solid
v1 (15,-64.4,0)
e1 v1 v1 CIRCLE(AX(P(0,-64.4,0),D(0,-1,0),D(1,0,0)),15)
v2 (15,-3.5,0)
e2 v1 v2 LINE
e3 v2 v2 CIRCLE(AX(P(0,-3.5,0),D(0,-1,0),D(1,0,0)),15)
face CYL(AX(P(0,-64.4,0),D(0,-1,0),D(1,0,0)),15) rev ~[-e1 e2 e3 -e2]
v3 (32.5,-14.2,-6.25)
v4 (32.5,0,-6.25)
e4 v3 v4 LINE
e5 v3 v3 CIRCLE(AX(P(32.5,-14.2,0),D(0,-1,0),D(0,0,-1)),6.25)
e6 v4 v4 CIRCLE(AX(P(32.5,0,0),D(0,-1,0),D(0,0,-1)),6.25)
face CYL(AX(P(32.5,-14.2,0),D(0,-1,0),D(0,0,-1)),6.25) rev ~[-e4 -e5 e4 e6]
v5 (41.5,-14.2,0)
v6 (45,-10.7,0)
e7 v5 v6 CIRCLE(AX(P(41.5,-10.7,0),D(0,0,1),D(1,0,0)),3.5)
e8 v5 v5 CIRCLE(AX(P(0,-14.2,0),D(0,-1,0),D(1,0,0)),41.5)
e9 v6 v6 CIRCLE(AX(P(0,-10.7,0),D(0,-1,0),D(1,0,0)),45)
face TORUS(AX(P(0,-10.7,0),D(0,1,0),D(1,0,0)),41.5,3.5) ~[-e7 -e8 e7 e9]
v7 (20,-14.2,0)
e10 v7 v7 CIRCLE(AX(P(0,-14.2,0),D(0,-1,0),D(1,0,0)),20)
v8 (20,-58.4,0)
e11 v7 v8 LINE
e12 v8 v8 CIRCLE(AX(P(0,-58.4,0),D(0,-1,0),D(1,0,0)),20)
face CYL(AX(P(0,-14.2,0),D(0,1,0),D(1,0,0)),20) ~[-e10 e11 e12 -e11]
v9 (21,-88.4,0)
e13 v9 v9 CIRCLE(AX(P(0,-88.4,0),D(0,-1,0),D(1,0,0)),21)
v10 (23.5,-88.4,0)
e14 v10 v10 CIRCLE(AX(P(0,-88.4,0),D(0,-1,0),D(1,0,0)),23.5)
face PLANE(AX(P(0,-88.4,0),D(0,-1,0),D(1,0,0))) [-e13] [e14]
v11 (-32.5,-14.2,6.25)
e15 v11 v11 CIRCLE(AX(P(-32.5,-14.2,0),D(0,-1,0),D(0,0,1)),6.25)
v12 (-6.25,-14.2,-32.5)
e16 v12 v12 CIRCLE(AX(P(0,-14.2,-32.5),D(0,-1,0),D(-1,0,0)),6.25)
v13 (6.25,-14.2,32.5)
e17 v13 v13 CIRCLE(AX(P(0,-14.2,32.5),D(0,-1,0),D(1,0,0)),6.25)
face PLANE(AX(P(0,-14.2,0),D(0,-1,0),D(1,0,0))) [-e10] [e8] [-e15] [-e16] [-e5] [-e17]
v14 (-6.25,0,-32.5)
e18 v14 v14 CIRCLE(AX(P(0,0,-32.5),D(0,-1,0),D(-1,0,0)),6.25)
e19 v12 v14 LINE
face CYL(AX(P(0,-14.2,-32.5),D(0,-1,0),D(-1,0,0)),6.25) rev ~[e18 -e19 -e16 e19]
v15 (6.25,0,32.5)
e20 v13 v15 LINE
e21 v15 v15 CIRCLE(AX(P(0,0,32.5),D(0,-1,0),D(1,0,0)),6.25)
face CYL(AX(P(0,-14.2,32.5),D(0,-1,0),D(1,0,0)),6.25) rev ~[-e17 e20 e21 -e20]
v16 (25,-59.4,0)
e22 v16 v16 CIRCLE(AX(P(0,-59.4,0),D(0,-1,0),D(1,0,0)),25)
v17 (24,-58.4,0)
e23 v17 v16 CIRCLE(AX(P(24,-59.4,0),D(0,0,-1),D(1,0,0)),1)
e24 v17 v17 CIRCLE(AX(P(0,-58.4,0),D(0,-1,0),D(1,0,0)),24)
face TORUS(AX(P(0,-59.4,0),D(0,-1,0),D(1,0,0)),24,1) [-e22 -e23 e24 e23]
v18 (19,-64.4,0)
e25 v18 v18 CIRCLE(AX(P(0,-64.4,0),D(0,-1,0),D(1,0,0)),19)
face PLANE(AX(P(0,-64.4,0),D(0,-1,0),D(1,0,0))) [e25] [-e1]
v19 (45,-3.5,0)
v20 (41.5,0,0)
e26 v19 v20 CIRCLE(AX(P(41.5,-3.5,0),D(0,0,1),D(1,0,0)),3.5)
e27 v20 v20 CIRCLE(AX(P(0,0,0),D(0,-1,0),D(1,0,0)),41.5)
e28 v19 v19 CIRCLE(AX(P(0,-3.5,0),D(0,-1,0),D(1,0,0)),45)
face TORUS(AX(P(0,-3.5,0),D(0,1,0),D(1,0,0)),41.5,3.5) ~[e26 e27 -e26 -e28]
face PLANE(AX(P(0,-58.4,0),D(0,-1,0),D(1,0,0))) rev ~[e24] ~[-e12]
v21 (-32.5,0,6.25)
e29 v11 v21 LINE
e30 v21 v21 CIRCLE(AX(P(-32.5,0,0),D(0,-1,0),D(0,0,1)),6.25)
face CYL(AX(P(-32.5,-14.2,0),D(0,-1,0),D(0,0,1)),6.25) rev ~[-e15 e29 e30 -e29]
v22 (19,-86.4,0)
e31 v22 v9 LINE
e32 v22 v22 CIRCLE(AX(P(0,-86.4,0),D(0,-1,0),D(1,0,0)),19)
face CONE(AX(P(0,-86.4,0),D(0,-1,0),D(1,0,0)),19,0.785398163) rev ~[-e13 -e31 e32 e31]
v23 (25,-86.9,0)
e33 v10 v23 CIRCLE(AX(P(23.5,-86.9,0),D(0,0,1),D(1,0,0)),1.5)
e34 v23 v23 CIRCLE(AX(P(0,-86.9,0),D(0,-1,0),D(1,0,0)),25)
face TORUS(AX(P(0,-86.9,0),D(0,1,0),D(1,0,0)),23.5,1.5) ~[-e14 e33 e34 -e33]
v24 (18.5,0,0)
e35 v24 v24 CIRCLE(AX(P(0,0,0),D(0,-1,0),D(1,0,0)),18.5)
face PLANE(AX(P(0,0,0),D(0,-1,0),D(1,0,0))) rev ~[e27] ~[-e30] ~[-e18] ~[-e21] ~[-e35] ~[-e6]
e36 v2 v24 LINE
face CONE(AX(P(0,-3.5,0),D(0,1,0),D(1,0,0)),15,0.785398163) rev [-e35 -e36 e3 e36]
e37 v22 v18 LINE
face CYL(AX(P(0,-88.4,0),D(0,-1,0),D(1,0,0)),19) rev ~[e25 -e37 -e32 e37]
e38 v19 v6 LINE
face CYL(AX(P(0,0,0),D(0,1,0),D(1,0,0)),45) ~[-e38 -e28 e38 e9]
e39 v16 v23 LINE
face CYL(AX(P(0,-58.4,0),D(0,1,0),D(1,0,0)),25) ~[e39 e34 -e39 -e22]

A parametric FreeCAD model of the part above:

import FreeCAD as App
import Part
import Sketcher
from FreeCAD import Vector


def edges_at(feature, points):
    """Names of the edges that pass closest to the given points."""
    edges = feature.Shape.Edges
    near = lambda p: min(range(len(edges)), key=lambda i: edges[i].distToShape(Part.Vertex(*p))[0])
    return sorted({f"Edge{near(p) + 1}" for p in points})

doc = App.newDocument("Part")
body = doc.addObject("PartDesign::Body", "Body")

sketch1 = body.newObject("Sketcher::SketchObject", "Sketch")
sketch1.AttachmentSupport = (doc.getObject("XZ_Plane"), [""])
sketch1.MapMode = "FlatFace"
sketch1.addGeometry(Part.Circle(Vector(0, 0, 0), Vector(0, 0, 1), 45), False)
sketch1.addConstraint([
    Sketcher.Constraint("Coincident", 0, 3, -1, 1),
    Sketcher.Constraint("Diameter", 0, 90.0),
])
pad1 = body.newObject("PartDesign::Pad", "Pad")
pad1.Profile = sketch1
pad1.Length = 14.2

sketch2 = body.newObject("Sketcher::SketchObject", "Sketch001")
sketch2.AttachmentSupport = (doc.getObject("XZ_Plane"), [""])
sketch2.MapMode = "FlatFace"
sketch2.AttachmentOffset = App.Placement(Vector(0, 0, 14.2), App.Rotation())
sketch2.addGeometry(Part.Circle(Vector(0, 0, 0), Vector(0, 0, 1), 20), False)
sketch2.addConstraint([
    Sketcher.Constraint("Coincident", 0, 3, -1, 1),
    Sketcher.Constraint("Diameter", 0, 40.0),
])
pad2 = body.newObject("PartDesign::Pad", "Pad001")
pad2.Profile = sketch2
pad2.Length = 44.2

sketch3 = body.newObject("Sketcher::SketchObject", "Sketch002")
sketch3.AttachmentSupport = (doc.getObject("XZ_Plane"), [""])
sketch3.MapMode = "FlatFace"
sketch3.AttachmentOffset = App.Placement(Vector(0, 0, 58.4), App.Rotation())
sketch3.addGeometry(Part.Circle(Vector(0, 0, 0), Vector(0, 0, 1), 25), False)
sketch3.addConstraint([
    Sketcher.Constraint("Coincident", 0, 3, -1, 1),
    Sketcher.Constraint("Diameter", 0, 50.0),
])
pad3 = body.newObject("PartDesign::Pad", "Pad002")
pad3.Profile = sketch3
pad3.Length = 30

sketch4 = body.newObject("Sketcher::SketchObject", "Sketch003")
sketch4.AttachmentSupport = (doc.getObject("XZ_Plane"), [""])
sketch4.MapMode = "FlatFace"
sketch4.AttachmentOffset = App.Placement(Vector(0, 0, 88.4), App.Rotation())
sketch4.addGeometry(Part.Circle(Vector(0, 0, 0), Vector(0, 0, 1), 19), False)
sketch4.addConstraint([
    Sketcher.Constraint("Coincident", 0, 3, -1, 1),
    Sketcher.Constraint("Diameter", 0, 38.0),
])
pocket1 = body.newObject("PartDesign::Pocket", "Pocket")
pocket1.Profile = sketch4
pocket1.Length = 24

sketch5 = body.newObject("Sketcher::SketchObject", "Sketch004")
sketch5.AttachmentSupport = (doc.getObject("XZ_Plane"), [""])
sketch5.MapMode = "FlatFace"
sketch5.AttachmentOffset = App.Placement(Vector(0, 0, 64.4), App.Rotation())
sketch5.addGeometry(Part.Circle(Vector(0, 0, 0), Vector(0, 0, 1), 15), False)
sketch5.addConstraint([
    Sketcher.Constraint("Coincident", 0, 3, -1, 1),
    Sketcher.Constraint("Diameter", 0, 30.0),
])
pocket2 = body.newObject("PartDesign::Pocket", "Pocket001")
pocket2.Profile = sketch5
pocket2.Type = "ThroughAll"
doc.recompute()

chamfer = body.newObject("PartDesign::Chamfer", "Chamfer")
chamfer.Base = (pocket2, edges_at(pocket2, [(-15, 0, 0)]))
chamfer.Size = 3.5
doc.recompute()

chamfer2 = body.newObject("PartDesign::Chamfer", "Chamfer001")
chamfer2.Base = (chamfer, edges_at(chamfer, [(-19, -88.4, 0)]))
chamfer2.Size = 2
doc.recompute()

fillet = body.newObject("PartDesign::Fillet", "Fillet")
fillet.Base = (chamfer2, edges_at(chamfer2, [(-25, -88.4, 0)]))
fillet.Radius = 1.5

sketch6 = body.newObject("Sketcher::SketchObject", "Sketch005")
sketch6.AttachmentSupport = (doc.getObject("XZ_Plane"), [""])
sketch6.MapMode = "FlatFace"
sketch6.AttachmentOffset = App.Placement(Vector(0, 0, 14.2), App.Rotation())
sketch6.addGeometry(Part.Circle(Vector(0, 32, 0), Vector(0, 0, 1), 6), False)
sketch6.addConstraint([
    Sketcher.Constraint("PointOnObject", 0, 3, -2),
    Sketcher.Constraint("Diameter", 0, 12.5),
    Sketcher.Constraint("DistanceY", -1, 1, 0, 3, 32.5),
])
pocket3 = body.newObject("PartDesign::Pocket", "Pocket002")
pocket3.Profile = sketch6
pocket3.Type = "ThroughAll"
doc.recompute()

polarpattern = body.newObject("PartDesign::PolarPattern", "PolarPattern")
polarpattern.Originals = [pocket3]
polarpattern.Axis = (doc.getObject("Y_Axis"), [""])
polarpattern.Angle = 360
polarpattern.Occurrences = 4
body.Tip = polarpattern
doc.recompute()

fillet2 = body.newObject("PartDesign::Fillet", "Fillet001")
fillet2.Base = (polarpattern, edges_at(polarpattern, [(45, -7.1, 0), (-45, 0, 0), (-45, -14.2, 0)]))
fillet2.Radius = 3.5
doc.recompute()

fillet3 = body.newObject("PartDesign::Fillet", "Fillet002")
fillet3.Base = (fillet2, edges_at(fillet2, [(-25, -58.4, 0)]))
fillet3.Radius = 1

doc.recompute()
